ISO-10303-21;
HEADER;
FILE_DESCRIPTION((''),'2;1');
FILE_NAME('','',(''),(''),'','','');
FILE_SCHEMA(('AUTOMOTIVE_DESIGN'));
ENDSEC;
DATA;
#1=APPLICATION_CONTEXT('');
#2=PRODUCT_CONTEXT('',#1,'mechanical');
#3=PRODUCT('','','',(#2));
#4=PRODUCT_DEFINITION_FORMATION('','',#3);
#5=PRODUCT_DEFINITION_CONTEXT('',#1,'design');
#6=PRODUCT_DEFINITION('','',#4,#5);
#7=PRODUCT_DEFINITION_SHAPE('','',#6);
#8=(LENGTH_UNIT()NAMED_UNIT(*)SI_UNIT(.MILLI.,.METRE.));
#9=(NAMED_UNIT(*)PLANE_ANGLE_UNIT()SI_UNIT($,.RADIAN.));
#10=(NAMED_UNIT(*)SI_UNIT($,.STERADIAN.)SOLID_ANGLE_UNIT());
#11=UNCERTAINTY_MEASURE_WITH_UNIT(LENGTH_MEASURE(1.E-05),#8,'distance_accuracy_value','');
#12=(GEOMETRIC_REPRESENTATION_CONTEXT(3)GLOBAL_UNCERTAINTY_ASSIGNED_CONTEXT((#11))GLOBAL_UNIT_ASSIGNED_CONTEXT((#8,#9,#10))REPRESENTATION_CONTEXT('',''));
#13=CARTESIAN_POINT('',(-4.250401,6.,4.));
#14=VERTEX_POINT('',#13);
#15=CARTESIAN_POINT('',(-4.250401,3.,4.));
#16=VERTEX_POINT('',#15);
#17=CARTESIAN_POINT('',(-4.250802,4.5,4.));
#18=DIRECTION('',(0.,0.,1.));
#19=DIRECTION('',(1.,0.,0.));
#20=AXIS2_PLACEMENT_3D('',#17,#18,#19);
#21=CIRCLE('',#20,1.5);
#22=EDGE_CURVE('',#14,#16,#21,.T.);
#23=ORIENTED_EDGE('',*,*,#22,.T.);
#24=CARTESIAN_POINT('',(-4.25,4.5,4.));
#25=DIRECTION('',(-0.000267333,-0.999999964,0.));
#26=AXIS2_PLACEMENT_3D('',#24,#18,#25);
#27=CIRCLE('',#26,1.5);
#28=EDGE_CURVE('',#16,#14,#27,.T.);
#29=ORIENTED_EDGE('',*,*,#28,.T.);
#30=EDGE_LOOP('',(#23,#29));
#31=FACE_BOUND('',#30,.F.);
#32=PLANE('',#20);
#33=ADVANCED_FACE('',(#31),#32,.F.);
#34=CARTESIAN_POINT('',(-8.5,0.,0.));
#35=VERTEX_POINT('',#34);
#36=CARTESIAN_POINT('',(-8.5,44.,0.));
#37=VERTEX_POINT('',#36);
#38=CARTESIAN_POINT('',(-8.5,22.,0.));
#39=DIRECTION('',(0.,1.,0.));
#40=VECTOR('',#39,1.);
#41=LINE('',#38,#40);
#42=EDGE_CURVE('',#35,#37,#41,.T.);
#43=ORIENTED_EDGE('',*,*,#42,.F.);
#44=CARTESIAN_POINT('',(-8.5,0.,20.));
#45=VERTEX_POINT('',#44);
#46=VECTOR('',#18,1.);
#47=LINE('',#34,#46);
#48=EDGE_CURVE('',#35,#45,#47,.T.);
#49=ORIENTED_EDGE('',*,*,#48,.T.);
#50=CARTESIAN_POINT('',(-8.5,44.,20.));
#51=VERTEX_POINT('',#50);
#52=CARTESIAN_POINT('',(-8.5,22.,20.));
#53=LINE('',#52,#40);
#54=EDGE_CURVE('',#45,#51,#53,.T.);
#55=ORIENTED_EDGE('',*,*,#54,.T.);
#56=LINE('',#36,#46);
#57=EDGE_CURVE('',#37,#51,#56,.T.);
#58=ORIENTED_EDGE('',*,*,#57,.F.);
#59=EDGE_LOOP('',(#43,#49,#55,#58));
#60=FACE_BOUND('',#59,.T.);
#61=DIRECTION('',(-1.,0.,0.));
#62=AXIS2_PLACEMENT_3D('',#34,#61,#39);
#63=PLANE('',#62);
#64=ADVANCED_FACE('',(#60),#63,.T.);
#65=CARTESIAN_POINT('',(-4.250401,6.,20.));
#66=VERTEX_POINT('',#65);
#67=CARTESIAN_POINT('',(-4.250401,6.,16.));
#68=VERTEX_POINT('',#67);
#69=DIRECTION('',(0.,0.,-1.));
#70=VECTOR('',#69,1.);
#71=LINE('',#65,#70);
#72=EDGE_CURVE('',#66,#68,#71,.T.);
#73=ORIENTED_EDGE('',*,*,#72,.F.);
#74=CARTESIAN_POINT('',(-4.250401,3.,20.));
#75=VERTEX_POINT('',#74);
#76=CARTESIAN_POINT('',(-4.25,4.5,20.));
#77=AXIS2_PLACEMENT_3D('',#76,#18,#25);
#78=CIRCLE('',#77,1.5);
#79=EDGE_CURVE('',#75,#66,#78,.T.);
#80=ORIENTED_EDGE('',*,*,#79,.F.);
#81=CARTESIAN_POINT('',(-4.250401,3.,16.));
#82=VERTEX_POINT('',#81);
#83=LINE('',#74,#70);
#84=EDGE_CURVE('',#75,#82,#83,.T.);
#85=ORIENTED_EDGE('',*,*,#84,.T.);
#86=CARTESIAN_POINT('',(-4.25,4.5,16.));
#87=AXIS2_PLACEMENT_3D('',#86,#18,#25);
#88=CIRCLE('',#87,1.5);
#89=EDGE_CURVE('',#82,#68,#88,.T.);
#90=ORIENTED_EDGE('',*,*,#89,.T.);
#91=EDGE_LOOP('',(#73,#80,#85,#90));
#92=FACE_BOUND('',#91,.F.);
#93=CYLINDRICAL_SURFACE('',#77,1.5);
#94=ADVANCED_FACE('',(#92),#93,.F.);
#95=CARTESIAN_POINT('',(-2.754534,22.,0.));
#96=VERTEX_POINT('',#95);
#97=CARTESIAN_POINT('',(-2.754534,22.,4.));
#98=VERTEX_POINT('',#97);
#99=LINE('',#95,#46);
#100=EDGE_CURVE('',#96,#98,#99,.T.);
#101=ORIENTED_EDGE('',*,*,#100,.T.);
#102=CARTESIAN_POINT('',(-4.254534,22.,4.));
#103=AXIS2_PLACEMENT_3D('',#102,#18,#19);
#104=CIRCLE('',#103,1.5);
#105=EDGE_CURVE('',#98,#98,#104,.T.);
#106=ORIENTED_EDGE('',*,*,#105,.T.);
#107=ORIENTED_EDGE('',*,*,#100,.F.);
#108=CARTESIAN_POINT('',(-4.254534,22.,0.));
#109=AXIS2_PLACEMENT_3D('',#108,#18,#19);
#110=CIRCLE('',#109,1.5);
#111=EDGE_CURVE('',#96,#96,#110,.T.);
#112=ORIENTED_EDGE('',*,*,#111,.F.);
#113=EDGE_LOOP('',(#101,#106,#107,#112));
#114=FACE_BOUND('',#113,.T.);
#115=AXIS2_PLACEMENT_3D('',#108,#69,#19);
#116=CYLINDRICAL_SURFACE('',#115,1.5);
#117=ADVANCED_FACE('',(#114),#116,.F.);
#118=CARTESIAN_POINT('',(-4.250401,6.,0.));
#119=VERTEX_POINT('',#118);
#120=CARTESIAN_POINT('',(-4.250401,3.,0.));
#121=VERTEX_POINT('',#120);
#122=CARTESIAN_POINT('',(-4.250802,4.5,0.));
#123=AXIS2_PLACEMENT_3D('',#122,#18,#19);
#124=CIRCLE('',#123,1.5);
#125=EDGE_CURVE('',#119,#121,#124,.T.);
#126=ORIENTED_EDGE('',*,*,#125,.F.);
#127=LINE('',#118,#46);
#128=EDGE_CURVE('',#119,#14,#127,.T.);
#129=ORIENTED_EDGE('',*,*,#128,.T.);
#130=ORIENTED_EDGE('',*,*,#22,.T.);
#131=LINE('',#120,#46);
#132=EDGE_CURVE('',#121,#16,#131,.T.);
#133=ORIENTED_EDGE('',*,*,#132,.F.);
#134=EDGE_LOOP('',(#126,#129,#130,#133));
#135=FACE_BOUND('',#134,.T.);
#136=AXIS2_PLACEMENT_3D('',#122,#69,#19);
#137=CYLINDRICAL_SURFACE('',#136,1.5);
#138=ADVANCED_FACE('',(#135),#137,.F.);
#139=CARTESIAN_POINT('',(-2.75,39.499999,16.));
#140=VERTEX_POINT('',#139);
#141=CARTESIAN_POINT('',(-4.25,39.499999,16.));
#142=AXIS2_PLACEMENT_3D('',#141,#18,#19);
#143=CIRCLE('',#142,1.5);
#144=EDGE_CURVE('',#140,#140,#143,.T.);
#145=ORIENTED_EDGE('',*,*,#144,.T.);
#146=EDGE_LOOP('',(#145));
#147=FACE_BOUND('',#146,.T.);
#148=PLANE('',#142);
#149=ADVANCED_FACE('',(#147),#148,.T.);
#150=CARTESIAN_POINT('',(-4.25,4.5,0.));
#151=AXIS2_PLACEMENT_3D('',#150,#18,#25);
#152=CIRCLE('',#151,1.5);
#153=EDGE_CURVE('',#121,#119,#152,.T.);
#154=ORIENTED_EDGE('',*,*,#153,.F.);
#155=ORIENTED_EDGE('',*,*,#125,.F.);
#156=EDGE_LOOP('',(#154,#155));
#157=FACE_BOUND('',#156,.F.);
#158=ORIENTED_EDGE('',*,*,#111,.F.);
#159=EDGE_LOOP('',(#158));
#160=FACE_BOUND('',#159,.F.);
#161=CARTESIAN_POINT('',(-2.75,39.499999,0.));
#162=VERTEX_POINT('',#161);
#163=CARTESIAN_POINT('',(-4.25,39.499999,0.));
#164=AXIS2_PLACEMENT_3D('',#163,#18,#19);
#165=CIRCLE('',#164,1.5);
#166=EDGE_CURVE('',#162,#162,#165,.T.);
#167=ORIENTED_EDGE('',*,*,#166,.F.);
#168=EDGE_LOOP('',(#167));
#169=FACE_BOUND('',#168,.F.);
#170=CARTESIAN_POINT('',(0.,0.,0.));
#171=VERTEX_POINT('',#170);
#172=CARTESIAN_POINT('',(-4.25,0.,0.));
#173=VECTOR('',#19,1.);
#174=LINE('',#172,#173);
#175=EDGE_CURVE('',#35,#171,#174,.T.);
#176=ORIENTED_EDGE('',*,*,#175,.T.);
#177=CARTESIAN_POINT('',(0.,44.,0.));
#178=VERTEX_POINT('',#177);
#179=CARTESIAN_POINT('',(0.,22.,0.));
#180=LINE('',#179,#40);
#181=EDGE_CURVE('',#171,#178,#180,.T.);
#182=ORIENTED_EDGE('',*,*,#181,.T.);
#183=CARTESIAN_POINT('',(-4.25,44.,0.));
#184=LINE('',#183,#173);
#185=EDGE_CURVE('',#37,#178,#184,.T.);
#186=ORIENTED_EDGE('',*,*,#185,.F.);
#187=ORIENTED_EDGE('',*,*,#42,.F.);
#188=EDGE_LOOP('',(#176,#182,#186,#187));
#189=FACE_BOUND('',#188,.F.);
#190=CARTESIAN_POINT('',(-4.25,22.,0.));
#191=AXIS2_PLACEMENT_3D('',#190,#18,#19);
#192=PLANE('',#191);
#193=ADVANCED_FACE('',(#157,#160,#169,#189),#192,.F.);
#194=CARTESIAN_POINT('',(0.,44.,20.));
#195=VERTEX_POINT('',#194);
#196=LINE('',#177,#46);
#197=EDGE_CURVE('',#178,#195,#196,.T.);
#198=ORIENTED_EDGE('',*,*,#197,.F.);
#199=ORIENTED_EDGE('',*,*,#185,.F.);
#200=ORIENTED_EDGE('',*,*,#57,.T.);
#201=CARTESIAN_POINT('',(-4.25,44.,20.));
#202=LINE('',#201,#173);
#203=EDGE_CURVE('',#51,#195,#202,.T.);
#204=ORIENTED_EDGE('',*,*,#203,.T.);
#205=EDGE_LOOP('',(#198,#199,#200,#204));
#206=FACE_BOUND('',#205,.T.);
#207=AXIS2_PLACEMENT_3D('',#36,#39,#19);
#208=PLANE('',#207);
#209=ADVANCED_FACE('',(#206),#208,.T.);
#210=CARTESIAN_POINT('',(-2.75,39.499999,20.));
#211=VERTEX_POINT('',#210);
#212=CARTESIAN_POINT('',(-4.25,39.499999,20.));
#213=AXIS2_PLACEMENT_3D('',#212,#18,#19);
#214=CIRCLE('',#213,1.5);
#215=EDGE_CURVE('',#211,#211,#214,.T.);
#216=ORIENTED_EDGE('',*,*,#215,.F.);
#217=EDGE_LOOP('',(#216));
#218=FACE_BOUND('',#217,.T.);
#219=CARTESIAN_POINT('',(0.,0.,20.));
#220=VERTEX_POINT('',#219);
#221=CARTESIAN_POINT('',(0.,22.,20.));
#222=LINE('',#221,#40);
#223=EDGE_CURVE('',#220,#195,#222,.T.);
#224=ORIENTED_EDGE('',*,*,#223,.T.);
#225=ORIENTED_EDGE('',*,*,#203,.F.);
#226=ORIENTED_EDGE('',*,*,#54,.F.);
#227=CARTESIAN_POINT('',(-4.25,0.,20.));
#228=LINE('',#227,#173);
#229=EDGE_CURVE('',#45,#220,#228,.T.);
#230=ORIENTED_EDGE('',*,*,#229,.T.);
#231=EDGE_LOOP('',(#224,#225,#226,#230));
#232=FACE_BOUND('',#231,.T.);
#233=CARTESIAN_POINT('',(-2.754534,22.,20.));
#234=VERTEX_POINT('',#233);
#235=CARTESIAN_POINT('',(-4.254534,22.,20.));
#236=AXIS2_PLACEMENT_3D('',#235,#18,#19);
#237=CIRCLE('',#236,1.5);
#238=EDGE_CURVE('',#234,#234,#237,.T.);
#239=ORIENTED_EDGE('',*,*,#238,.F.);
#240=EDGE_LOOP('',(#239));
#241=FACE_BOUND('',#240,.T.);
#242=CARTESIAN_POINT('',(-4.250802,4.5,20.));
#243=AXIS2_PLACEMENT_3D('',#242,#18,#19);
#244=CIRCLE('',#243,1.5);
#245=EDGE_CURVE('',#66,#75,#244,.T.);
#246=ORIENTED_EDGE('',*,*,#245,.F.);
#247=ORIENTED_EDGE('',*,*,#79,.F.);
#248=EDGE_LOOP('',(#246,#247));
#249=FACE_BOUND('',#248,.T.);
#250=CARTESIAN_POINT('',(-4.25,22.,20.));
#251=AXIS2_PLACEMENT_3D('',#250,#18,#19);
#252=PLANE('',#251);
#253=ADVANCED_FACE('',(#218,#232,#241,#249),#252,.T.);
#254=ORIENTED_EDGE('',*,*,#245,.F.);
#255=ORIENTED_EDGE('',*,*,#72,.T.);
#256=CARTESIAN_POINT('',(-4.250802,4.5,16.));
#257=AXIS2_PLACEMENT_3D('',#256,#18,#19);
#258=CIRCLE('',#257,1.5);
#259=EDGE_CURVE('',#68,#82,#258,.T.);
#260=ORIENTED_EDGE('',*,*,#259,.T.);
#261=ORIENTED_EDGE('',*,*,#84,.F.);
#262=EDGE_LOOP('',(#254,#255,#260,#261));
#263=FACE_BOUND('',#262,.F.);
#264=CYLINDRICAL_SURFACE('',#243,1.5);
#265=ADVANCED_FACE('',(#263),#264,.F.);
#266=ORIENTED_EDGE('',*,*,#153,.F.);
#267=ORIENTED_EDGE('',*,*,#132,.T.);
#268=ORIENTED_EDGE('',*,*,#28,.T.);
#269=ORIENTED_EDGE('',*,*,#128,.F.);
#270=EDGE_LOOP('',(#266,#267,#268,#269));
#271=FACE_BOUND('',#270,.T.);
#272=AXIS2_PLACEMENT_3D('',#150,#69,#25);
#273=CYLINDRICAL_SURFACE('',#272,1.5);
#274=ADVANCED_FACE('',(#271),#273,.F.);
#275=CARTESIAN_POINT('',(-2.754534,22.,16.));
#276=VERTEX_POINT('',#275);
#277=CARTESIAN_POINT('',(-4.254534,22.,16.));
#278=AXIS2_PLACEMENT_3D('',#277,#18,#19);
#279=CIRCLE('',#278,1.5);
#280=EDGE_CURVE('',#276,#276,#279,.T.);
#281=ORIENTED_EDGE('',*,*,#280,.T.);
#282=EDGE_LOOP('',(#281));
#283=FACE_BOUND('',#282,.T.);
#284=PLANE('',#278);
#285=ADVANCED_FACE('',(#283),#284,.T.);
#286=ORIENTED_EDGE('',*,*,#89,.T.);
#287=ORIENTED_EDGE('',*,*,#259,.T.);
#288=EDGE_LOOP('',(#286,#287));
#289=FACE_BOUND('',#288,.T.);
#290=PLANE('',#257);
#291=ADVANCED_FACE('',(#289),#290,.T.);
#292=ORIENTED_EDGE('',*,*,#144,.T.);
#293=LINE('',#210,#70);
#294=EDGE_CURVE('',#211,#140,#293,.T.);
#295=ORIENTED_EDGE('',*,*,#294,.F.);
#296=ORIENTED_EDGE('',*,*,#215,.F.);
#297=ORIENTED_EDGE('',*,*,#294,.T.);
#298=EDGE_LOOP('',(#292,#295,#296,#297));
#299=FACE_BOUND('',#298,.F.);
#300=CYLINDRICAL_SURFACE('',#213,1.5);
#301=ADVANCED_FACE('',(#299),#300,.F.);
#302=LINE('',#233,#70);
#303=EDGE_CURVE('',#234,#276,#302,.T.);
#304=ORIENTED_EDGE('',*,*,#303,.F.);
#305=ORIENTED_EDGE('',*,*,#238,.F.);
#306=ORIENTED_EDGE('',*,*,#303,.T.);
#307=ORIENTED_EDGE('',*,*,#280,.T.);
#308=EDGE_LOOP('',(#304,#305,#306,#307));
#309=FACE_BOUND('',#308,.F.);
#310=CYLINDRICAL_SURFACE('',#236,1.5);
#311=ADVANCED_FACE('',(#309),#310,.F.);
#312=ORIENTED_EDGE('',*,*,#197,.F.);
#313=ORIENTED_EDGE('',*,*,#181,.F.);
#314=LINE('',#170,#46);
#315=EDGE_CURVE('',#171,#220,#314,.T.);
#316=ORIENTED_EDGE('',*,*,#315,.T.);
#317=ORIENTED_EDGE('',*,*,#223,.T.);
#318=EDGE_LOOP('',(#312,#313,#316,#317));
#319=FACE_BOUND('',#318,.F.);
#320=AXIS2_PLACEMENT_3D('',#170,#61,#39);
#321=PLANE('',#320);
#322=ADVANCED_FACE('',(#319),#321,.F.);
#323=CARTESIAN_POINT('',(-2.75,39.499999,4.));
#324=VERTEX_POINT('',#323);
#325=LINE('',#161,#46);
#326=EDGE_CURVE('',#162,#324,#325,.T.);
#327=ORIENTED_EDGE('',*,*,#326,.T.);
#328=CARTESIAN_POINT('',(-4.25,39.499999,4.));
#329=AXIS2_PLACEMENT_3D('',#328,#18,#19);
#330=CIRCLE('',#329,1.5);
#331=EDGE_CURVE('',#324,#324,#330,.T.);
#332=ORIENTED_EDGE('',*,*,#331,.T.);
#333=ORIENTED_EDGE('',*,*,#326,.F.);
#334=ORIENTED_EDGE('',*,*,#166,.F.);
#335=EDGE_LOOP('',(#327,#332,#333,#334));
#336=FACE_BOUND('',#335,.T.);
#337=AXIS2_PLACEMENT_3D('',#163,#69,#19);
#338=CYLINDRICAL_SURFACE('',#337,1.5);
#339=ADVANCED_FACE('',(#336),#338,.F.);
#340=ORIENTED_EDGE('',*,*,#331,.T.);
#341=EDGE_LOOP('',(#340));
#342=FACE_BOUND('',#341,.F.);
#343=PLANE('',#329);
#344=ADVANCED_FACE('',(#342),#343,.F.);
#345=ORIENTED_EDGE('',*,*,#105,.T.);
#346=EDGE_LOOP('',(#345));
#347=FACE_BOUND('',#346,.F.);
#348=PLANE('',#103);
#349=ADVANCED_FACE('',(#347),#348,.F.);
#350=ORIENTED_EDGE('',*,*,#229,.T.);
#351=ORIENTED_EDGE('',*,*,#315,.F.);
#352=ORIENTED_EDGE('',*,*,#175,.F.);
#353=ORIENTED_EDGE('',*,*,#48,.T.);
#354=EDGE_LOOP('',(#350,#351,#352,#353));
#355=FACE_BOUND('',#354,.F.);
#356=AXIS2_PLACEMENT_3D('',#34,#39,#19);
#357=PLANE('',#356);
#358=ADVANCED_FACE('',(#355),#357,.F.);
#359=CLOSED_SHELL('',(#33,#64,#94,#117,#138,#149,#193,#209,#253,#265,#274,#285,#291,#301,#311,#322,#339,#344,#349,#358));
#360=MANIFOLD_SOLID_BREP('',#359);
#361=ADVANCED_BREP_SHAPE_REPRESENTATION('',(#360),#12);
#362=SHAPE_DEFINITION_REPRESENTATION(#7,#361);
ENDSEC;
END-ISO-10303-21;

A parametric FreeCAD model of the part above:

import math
import FreeCAD as App
import Part
import Sketcher

V = App.Vector
Q = App.Units.Quantity


def add_polygon(sketch, points):
    """Adds a closed chain of lines whose ends are joined by coincident constraints."""
    first, n = sketch.GeometryCount, len(points)
    for a, b in zip(points, points[1:] + points[:1]):
        sketch.addGeometry(Part.LineSegment(App.Vector(*a, 0), App.Vector(*b, 0)), False)
    for i in range(n):
        sketch.addConstraint(Sketcher.Constraint("Coincident", first + i, 2, first + (i + 1) % n, 1))

doc = App.newDocument("Part")
body = doc.addObject("PartDesign::Body", "Body")

# Sketch on XY plane
sketch1 = doc.addObject("Sketcher::SketchObject", "Sketch")
body.addObject(sketch1)
sketch1.AttachmentSupport = (doc.XY_Plane, [""])
sketch1.MapMode = "FlatFace"
add_polygon(sketch1, [(-8.5, 44), (-8.5, 0), (0, 0), (0, 44)])  # lines 0-3
sketch1.addConstraint(Sketcher.Constraint("Vertical", 0))
sketch1.addConstraint(Sketcher.Constraint("Horizontal", 1))
sketch1.addConstraint(Sketcher.Constraint("Vertical", 2))
sketch1.addConstraint(Sketcher.Constraint("Horizontal", 3))
sketch1.addConstraint(Sketcher.Constraint("Coincident", 1, 2, -1, 1))
sketch1.addConstraint(Sketcher.Constraint("DistanceY", 0, 2, 0, 1, Q("44 mm")))
sketch1.addConstraint(Sketcher.Constraint("DistanceX", 1, 1, 1, 2, Q("8.5 mm")))
pad1 = doc.addObject("PartDesign::Pad", "Pad")
body.addObject(pad1)
pad1.Profile = sketch1
pad1.Length = 20

# Sketch on XY plane
sketch2 = doc.addObject("Sketcher::SketchObject", "Sketch001")
body.addObject(sketch2)
sketch2.AttachmentSupport = (doc.XY_Plane, [""])
sketch2.MapMode = "FlatFace"
sketch2.addGeometry(Part.ArcOfCircle(Part.Circle(V(-4.25, 4.5, 0), V(0, 0, 1), 1.5), math.radians(-90.015317), math.radians(90.015317)), False)
sketch2.addGeometry(Part.ArcOfCircle(Part.Circle(V(-4.250802, 4.5, 0), V(0, 0, 1), 1.5), math.radians(89.984683), math.radians(270.015317)), False)
sketch2.addGeometry(Part.Circle(V(-4.25, 39.499999, 0), V(0, 0, 1), 1.5), False)
sketch2.addGeometry(Part.Circle(V(-4.254534, 22, 0), V(0, 0, 1), 1.5), False)
sketch2.addConstraint(Sketcher.Constraint("Coincident", 0, 1, 1, 2))
sketch2.addConstraint(Sketcher.Constraint("Coincident", 1, 1, 0, 2))
sketch2.addConstraint(Sketcher.Constraint("Equal", 1, 2))
sketch2.addConstraint(Sketcher.Constraint("Equal", 2, 3))
sketch2.addConstraint(Sketcher.Constraint("Vertical", 0, 3, 2, 3))
sketch2.addConstraint(Sketcher.Constraint("Vertical", 0, 1, 1, 1))
sketch2.addConstraint(Sketcher.Constraint("Diameter", 2, Q("3 mm")))
sketch2.addConstraint(Sketcher.Constraint("DistanceY", -1, 1, 3, 3, Q("22 mm")))
sketch2.addConstraint(Sketcher.Constraint("DistanceY", -1, 1, 0, 1, Q("3 mm")))
sketch2.addConstraint(Sketcher.Constraint("DistanceY", 0, 3, 2, 3, Q("34.999999 mm")))
sketch2.addConstraint(Sketcher.Constraint("DistanceX", 0, 3, -1, 1, Q("4.25 mm")))
sketch2.addConstraint(Sketcher.Constraint("DistanceX", 0, 1, -1, 1, Q("4.250401 mm")))
sketch2.addConstraint(Sketcher.Constraint("DistanceX", 1, 3, 0, 1, Q("0.000401 mm")))
sketch2.addConstraint(Sketcher.Constraint("DistanceX", 3, 3, 1, 3, Q("0.003732 mm")))
pocket1 = doc.addObject("PartDesign::Pocket", "Pocket")
body.addObject(pocket1)
pocket1.Profile = sketch2
pocket1.Length = 4
pocket1.Reversed = True

# Sketch on XY plane
sketch3 = doc.addObject("Sketcher::SketchObject", "Sketch002")
body.addObject(sketch3)
sketch3.AttachmentSupport = (doc.XY_Plane, [""])
sketch3.MapMode = "FlatFace"
sketch3.AttachmentOffset = App.Placement(V(0, 0, 20), App.Rotation())
sketch3.addGeometry(Part.ArcOfCircle(Part.Circle(V(-4.25, 4.5, 0), V(0, 0, 1), 1.5), math.radians(-90.015317), math.radians(90.015317)), False)
sketch3.addGeometry(Part.ArcOfCircle(Part.Circle(V(-4.250802, 4.5, 0), V(0, 0, 1), 1.5), math.radians(89.984683), math.radians(270.015317)), False)
sketch3.addGeometry(Part.Circle(V(-4.25, 39.499999, 0), V(0, 0, 1), 1.5), False)
sketch3.addGeometry(Part.Circle(V(-4.254534, 22, 0), V(0, 0, 1), 1.5), False)
sketch3.addConstraint(Sketcher.Constraint("Coincident", 0, 1, 1, 2))
sketch3.addConstraint(Sketcher.Constraint("Coincident", 1, 1, 0, 2))
sketch3.addConstraint(Sketcher.Constraint("Equal", 1, 2))
sketch3.addConstraint(Sketcher.Constraint("Equal", 2, 3))
sketch3.addConstraint(Sketcher.Constraint("Vertical", 0, 3, 2, 3))
sketch3.addConstraint(Sketcher.Constraint("Vertical", 0, 1, 1, 1))
sketch3.addConstraint(Sketcher.Constraint("Diameter", 2, Q("3 mm")))
sketch3.addConstraint(Sketcher.Constraint("DistanceY", -1, 1, 3, 3, Q("22 mm")))
sketch3.addConstraint(Sketcher.Constraint("DistanceY", -1, 1, 0, 1, Q("3 mm")))
sketch3.addConstraint(Sketcher.Constraint("DistanceY", 0, 3, 2, 3, Q("34.999999 mm")))
sketch3.addConstraint(Sketcher.Constraint("DistanceX", 0, 3, -1, 1, Q("4.25 mm")))
sketch3.addConstraint(Sketcher.Constraint("DistanceX", 0, 1, -1, 1, Q("4.250401 mm")))
sketch3.addConstraint(Sketcher.Constraint("DistanceX", 1, 3, 0, 1, Q("0.000401 mm")))
sketch3.addConstraint(Sketcher.Constraint("DistanceX", 3, 3, 1, 3, Q("0.003732 mm")))
pocket2 = doc.addObject("PartDesign::Pocket", "Pocket001")
body.addObject(pocket2)
pocket2.Profile = sketch3
pocket2.Length = 4

doc.recompute()
